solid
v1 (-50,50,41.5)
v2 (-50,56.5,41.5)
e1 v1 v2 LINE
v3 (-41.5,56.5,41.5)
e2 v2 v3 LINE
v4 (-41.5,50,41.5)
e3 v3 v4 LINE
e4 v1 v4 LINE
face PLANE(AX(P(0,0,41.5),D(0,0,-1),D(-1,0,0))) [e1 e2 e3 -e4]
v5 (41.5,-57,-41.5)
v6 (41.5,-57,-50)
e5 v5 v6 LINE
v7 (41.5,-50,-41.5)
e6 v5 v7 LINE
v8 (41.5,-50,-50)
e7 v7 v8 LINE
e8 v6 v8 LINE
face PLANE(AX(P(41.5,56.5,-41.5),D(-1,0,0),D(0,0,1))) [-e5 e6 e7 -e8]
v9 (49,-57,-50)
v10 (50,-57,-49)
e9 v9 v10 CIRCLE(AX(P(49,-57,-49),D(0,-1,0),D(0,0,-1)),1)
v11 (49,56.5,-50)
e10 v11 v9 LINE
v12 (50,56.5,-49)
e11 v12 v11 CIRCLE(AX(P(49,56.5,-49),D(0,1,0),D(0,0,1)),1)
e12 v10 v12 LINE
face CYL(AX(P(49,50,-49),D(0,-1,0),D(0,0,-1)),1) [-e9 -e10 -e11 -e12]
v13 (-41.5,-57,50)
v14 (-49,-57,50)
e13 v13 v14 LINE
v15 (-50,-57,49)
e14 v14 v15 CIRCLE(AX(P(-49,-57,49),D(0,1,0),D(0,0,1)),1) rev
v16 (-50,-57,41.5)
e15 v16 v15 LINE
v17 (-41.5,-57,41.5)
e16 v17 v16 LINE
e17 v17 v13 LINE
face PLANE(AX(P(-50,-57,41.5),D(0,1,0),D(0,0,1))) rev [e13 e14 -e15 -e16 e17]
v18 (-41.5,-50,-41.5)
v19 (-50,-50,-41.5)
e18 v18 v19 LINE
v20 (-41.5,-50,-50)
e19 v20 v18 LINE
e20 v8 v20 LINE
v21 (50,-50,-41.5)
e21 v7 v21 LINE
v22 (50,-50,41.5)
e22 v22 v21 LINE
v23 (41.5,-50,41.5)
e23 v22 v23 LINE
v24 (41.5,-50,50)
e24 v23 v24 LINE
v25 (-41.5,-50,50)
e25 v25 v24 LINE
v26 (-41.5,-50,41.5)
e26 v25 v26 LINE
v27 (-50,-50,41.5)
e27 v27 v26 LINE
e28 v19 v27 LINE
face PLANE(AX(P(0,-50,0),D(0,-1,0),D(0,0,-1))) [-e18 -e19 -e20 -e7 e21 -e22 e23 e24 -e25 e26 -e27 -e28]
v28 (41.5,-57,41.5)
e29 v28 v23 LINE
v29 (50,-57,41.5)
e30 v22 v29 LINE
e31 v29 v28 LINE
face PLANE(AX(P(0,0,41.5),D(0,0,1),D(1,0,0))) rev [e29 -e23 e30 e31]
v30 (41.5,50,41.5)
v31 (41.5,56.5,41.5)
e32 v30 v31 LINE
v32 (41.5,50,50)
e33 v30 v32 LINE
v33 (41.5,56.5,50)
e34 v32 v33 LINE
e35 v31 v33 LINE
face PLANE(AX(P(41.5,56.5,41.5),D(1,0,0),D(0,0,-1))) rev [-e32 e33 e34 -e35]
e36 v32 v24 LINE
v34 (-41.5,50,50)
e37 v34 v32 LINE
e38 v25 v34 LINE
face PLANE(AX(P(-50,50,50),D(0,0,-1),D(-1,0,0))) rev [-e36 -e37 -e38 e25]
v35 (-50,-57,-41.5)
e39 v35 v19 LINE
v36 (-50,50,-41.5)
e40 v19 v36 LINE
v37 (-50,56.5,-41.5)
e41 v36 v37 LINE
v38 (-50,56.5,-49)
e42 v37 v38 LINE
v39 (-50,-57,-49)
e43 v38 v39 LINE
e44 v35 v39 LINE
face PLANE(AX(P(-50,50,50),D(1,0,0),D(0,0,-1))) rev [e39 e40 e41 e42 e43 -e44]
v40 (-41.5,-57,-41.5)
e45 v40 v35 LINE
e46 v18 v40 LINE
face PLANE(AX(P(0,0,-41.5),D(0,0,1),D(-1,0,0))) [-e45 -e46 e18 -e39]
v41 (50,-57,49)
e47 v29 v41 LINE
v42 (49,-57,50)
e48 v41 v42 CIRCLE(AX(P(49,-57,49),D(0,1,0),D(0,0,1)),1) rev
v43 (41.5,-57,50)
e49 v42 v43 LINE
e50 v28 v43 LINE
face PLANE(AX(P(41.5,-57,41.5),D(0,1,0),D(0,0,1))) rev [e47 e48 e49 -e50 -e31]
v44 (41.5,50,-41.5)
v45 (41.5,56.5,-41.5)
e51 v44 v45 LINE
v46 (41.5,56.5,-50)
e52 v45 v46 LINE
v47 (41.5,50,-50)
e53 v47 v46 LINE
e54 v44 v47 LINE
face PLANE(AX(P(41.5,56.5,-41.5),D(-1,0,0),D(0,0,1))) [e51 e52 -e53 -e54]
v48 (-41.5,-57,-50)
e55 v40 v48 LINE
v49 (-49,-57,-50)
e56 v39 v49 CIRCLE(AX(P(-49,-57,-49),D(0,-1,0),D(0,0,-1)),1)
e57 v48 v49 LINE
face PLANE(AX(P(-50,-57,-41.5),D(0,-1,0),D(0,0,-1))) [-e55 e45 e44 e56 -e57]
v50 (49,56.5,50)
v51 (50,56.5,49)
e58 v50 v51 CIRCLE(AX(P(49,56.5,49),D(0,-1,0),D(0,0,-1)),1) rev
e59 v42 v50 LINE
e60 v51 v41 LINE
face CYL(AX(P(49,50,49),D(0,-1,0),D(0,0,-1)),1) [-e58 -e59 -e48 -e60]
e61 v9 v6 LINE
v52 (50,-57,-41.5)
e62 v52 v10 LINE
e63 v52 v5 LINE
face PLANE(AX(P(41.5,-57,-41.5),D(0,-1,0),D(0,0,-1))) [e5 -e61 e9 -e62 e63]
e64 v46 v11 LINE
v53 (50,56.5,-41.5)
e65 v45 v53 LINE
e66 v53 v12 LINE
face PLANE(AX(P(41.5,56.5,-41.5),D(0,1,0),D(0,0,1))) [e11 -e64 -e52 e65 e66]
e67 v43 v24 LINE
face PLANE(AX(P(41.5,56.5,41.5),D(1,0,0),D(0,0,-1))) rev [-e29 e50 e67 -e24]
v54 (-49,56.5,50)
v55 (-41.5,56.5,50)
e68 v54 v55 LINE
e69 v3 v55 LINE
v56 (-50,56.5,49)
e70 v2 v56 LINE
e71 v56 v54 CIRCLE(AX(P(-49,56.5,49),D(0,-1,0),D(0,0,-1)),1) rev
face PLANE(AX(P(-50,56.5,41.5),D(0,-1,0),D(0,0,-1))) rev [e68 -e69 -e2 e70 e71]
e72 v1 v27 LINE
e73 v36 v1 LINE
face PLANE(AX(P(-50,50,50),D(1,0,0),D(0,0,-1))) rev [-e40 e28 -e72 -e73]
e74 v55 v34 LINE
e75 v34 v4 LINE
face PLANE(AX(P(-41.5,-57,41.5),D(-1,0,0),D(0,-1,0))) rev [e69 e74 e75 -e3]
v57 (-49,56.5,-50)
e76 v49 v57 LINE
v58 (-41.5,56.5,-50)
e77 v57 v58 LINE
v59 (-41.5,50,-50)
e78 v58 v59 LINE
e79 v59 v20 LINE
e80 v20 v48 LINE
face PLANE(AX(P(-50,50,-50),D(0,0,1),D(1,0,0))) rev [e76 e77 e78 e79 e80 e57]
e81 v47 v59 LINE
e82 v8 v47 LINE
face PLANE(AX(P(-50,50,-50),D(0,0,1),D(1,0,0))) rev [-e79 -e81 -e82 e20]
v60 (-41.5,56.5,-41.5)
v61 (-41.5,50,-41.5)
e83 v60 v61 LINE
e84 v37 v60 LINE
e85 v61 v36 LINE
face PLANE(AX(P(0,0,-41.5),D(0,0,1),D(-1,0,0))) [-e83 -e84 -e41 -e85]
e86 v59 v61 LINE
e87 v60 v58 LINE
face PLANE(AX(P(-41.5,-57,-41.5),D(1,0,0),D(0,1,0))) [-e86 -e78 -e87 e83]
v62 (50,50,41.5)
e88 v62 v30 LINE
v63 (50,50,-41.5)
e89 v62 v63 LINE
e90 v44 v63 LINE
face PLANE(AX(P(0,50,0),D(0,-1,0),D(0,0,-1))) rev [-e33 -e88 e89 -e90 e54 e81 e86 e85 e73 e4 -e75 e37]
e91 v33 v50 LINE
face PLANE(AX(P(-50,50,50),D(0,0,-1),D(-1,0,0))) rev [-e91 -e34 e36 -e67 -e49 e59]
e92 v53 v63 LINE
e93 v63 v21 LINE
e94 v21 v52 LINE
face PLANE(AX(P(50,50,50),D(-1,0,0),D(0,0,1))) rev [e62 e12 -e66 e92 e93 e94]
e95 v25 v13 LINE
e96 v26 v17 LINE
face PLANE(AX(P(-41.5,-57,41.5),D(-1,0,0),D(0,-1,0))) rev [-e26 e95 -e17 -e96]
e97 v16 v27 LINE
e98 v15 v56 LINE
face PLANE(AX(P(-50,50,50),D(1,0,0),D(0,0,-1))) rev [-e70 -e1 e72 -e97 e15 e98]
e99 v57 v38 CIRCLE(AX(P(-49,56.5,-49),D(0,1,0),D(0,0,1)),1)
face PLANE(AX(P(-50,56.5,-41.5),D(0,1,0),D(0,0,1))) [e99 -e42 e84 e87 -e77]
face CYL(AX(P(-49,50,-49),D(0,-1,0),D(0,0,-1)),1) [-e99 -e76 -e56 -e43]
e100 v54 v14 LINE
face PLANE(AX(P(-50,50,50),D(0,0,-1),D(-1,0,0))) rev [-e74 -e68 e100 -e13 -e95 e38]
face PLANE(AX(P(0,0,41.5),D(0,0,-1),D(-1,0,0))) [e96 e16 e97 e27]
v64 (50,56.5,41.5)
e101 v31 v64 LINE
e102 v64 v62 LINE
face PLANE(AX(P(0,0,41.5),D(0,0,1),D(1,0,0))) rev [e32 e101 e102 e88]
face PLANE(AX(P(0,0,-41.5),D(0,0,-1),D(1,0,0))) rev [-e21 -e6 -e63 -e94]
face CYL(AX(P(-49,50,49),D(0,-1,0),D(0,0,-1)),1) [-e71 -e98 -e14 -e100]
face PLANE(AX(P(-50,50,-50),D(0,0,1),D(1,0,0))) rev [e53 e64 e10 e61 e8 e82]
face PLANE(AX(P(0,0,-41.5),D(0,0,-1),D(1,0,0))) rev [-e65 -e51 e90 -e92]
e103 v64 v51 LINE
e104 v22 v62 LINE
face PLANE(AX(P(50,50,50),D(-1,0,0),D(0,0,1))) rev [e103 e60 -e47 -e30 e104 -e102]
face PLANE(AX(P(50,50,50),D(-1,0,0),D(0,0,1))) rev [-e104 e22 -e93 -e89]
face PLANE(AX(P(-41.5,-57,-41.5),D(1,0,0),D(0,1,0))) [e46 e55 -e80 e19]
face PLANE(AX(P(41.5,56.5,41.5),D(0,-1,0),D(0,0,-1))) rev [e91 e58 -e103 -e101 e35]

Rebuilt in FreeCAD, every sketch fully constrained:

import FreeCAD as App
import Part
import Sketcher
from FreeCAD import Vector
Q = App.Units.Quantity


def edges_at(feature, points):
    """Names of the edges that pass closest to the given points."""
    edges = feature.Shape.Edges
    near = lambda p: min(range(len(edges)), key=lambda i: edges[i].distToShape(Part.Vertex(*p))[0])
    return sorted({f"Edge{near(p) + 1}" for p in points})

doc = App.newDocument("Part")
params = doc.addObject("Spreadsheet::Sheet", "Params")
for row, (alias, value) in enumerate([
    ("sketch1_width", "100 mm"),
    ("pad1_length", "100 mm"),
    ("sketch2_width", "8.5 mm"),
    ("sketch2_height", "113.5 mm"),
    ("pad2_length", "8.5 mm"),
    ("fillet_radius", "1 mm"),
], start=1):
    params.set(f"A{row}", alias)
    params.set(f"B{row}", "=" + value)
    params.setAlias(f"B{row}", alias)

body = doc.addObject("PartDesign::Body", "Body")

sketch1 = body.newObject("Sketcher::SketchObject", "Sketch")
sketch1.AttachmentSupport = (doc.getObject("XZ_Plane"), [""])
sketch1.MapMode = "FlatFace"
sketch1.addGeometry([
    Part.LineSegment(Vector(-50, -50, 0), Vector(-50, 50, 0)),
    Part.LineSegment(Vector(-50, 50, 0), Vector(50, 50, 0)),
    Part.LineSegment(Vector(50, 50, 0), Vector(50, -50, 0)),
    Part.LineSegment(Vector(50, -50, 0), Vector(-50, -50, 0)),
], False)
sketch1.addConstraint([
    Sketcher.Constraint("Coincident", 0, 2, 1, 1),
    Sketcher.Constraint("Coincident", 1, 2, 2, 1),
    Sketcher.Constraint("Coincident", 2, 2, 3, 1),
    Sketcher.Constraint("Coincident", 3, 2, 0, 1),
    Sketcher.Constraint("Vertical", 0),
    Sketcher.Constraint("Horizontal", 1),
    Sketcher.Constraint("Vertical", 2),
    Sketcher.Constraint("Horizontal", 3),
    Sketcher.Constraint("Symmetric", 0, 2, 2, 2, -1, 1),
    Sketcher.Constraint("Equal", 3, 0),
    Sketcher.Constraint("DistanceX", 1, 1, 1, 2, Q("100 mm")),
])
sketch1.setExpression("Constraints[10]", "Params.sketch1_width")
pad1 = body.newObject("PartDesign::Pad", "Pad")
pad1.Profile = sketch1
pad1.setExpression("Length", "Params.pad1_length")
pad1.Midplane = True

sketch2 = body.newObject("Sketcher::SketchObject", "Sketch001")
sketch2.AttachmentSupport = (doc.getObject("XY_Plane"), [""])
sketch2.MapMode = "FlatFace"
sketch2.AttachmentOffset = App.Placement(Vector(0, 0, 50), App.Rotation())
sketch2.addGeometry([
    Part.LineSegment(Vector(-50, -57, 0), Vector(-50, 56, 0)),
    Part.LineSegment(Vector(-50, 56, 0), Vector(-42, 56, 0)),
    Part.LineSegment(Vector(-42, 56, 0), Vector(-42, -57, 0)),
    Part.LineSegment(Vector(-42, -57, 0), Vector(-50, -57, 0)),
    Part.LineSegment(Vector(42, -57, 0), Vector(42, 56, 0)),
    Part.LineSegment(Vector(42, 56, 0), Vector(50, 56, 0)),
    Part.LineSegment(Vector(50, 56, 0), Vector(50, -57, 0)),
    Part.LineSegment(Vector(50, -57, 0), Vector(42, -57, 0)),
], False)
sketch2.addConstraint([
    Sketcher.Constraint("Coincident", 0, 2, 1, 1),
    Sketcher.Constraint("Coincident", 1, 2, 2, 1),
    Sketcher.Constraint("Coincident", 2, 2, 3, 1),
    Sketcher.Constraint("Coincident", 3, 2, 0, 1),
    Sketcher.Constraint("Coincident", 4, 2, 5, 1),
    Sketcher.Constraint("Coincident", 5, 2, 6, 1),
    Sketcher.Constraint("Coincident", 6, 2, 7, 1),
    Sketcher.Constraint("Coincident", 7, 2, 4, 1),
    Sketcher.Constraint("Vertical", 0),
    Sketcher.Constraint("Horizontal", 1),
    Sketcher.Constraint("Vertical", 2),
    Sketcher.Constraint("Horizontal", 3),
    Sketcher.Constraint("Vertical", 4),
    Sketcher.Constraint("Horizontal", 5),
    Sketcher.Constraint("Vertical", 6),
    Sketcher.Constraint("Horizontal", 7),
    Sketcher.Constraint("Symmetric", 1, 2, 4, 2, -2),
    Sketcher.Constraint("Symmetric", 3, 2, 6, 2, -2),
    Sketcher.Constraint("DistanceX", 1, 1, 1, 2, Q("8.5 mm")),
    Sketcher.Constraint("DistanceY", 0, 1, 0, 2, Q("113.5 mm")),
    Sketcher.Constraint("DistanceX", 0, 2, -1, 1, Q("50 mm")),
    Sketcher.Constraint("DistanceY", 2, 2, -1, 1, Q("57 mm")),
])
sketch2.setExpression("Constraints[18]", "Params.sketch2_width")
sketch2.setExpression("Constraints[19]", "Params.sketch2_height")
pad2 = body.newObject("PartDesign::Pad", "Pad001")
pad2.Profile = sketch2
pad2.setExpression("Length", "Params.pad2_length")
pad2.Reversed = True
doc.recompute()

mirrored = body.newObject("PartDesign::Mirrored", "Mirrored")
mirrored.Originals = [pad2]
mirrored.MirrorPlane = (doc.getObject("XY_Plane"), [""])
body.Tip = mirrored
doc.recompute()

fillet = body.newObject("PartDesign::Fillet", "Fillet")
fillet.Base = (mirrored, edges_at(mirrored, [
    (50, -0.25, 50),
    (-50, -0.25, 50),
    (-50, -0.25, -50),
    (50, -0.25, -50),
]))
fillet.setExpression("Radius", "Params.fillet_radius")

doc.recompute()
